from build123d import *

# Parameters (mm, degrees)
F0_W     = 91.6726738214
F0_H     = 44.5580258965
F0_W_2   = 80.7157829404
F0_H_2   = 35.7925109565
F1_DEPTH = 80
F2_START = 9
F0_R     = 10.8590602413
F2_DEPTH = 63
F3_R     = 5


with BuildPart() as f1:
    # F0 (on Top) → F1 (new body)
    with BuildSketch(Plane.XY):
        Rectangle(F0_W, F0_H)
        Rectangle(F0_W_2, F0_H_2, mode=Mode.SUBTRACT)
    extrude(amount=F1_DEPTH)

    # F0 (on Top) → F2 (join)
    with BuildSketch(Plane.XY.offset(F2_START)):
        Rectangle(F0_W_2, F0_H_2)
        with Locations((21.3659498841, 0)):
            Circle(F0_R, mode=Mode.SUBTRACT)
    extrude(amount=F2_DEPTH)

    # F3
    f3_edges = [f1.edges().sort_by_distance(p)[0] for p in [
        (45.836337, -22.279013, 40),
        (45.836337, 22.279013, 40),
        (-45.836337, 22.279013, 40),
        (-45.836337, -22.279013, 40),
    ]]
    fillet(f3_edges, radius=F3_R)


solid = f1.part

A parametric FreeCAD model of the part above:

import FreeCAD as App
import Part
import Sketcher
from FreeCAD import Vector


def edges_at(feature, points):
    """Names of the edges that pass closest to the given points."""
    edges = feature.Shape.Edges
    near = lambda p: min(range(len(edges)), key=lambda i: edges[i].distToShape(Part.Vertex(*p))[0])
    return sorted({f"Edge{near(p) + 1}" for p in points})

doc = App.newDocument("Part")
body = doc.addObject("PartDesign::Body", "Body")

sketch1 = body.newObject("Sketcher::SketchObject", "Sketch")
sketch1.AttachmentSupport = (doc.getObject("XY_Plane"), [""])
sketch1.MapMode = "FlatFace"
sketch1.addGeometry([
    Part.LineSegment(Vector(-46, 22, 0), Vector(-46, -22, 0)),
    Part.LineSegment(Vector(-46, -22, 0), Vector(46, -22, 0)),
    Part.LineSegment(Vector(46, -22, 0), Vector(46, 22, 0)),
    Part.LineSegment(Vector(46, 22, 0), Vector(-46, 22, 0)),
    Part.LineSegment(Vector(40, -18, 0), Vector(-40, -18, 0)),
    Part.LineSegment(Vector(-40, -18, 0), Vector(-40, 18, 0)),
    Part.LineSegment(Vector(-40, 18, 0), Vector(40, 18, 0)),
    Part.LineSegment(Vector(40, 18, 0), Vector(40, -18, 0)),
], False)
sketch1.addConstraint([
    Sketcher.Constraint("Coincident", 0, 2, 1, 1),
    Sketcher.Constraint("Coincident", 1, 2, 2, 1),
    Sketcher.Constraint("Coincident", 2, 2, 3, 1),
    Sketcher.Constraint("Coincident", 3, 2, 0, 1),
    Sketcher.Constraint("Coincident", 4, 2, 5, 1),
    Sketcher.Constraint("Coincident", 5, 2, 6, 1),
    Sketcher.Constraint("Coincident", 6, 2, 7, 1),
    Sketcher.Constraint("Coincident", 7, 2, 4, 1),
    Sketcher.Constraint("Vertical", 0),
    Sketcher.Constraint("Horizontal", 1),
    Sketcher.Constraint("Vertical", 2),
    Sketcher.Constraint("Horizontal", 3),
    Sketcher.Constraint("Horizontal", 4),
    Sketcher.Constraint("Vertical", 5),
    Sketcher.Constraint("Horizontal", 6),
    Sketcher.Constraint("Vertical", 7),
    Sketcher.Constraint("Symmetric", 0, 2, 2, 2, -1, 1),
    Sketcher.Constraint("Symmetric", 4, 2, 6, 2, -1, 1),
    Sketcher.Constraint("DistanceY", 5, 1, 5, 2, 35.792511),
    Sketcher.Constraint("DistanceX", 1, 1, 1, 2, 91.672674),
    Sketcher.Constraint("DistanceX", 4, 2, 4, 1, 80.715783),
    Sketcher.Constraint("DistanceY", 0, 2, 0, 1, 44.558026),
])
pad1 = body.newObject("PartDesign::Pad", "Pad")
pad1.Profile = sketch1
pad1.Length = 80

sketch2 = body.newObject("Sketcher::SketchObject", "Sketch001")
sketch2.AttachmentSupport = (doc.getObject("XY_Plane"), [""])
sketch2.MapMode = "FlatFace"
sketch2.AttachmentOffset = App.Placement(Vector(0, 0, 9), App.Rotation())
sketch2.addGeometry([
    Part.LineSegment(Vector(-40, 18, 0), Vector(-40, -18, 0)),
    Part.LineSegment(Vector(-40, -18, 0), Vector(40, -18, 0)),
    Part.LineSegment(Vector(40, -18, 0), Vector(40, 18, 0)),
    Part.LineSegment(Vector(40, 18, 0), Vector(-40, 18, 0)),
    Part.Circle(Vector(21, 0, 0), Vector(0, 0, 1), 11),
], False)
sketch2.addConstraint([
    Sketcher.Constraint("Coincident", 0, 2, 1, 1),
    Sketcher.Constraint("Coincident", 1, 2, 2, 1),
    Sketcher.Constraint("Coincident", 2, 2, 3, 1),
    Sketcher.Constraint("Coincident", 3, 2, 0, 1),
    Sketcher.Constraint("Vertical", 0),
    Sketcher.Constraint("Horizontal", 1),
    Sketcher.Constraint("Vertical", 2),
    Sketcher.Constraint("Horizontal", 3),
    Sketcher.Constraint("Symmetric", 0, 2, 2, 2, -1, 1),
    Sketcher.Constraint("PointOnObject", 4, 3, -1),
    Sketcher.Constraint("Diameter", 4, 21.71812),
    Sketcher.Constraint("DistanceY", 0, 2, 0, 1, 35.792511),
    Sketcher.Constraint("DistanceX", 1, 1, 1, 2, 80.715783),
    Sketcher.Constraint("DistanceX", -1, 1, 4, 3, 21.36595),
])
pad2 = body.newObject("PartDesign::Pad", "Pad001")
pad2.Profile = sketch2
pad2.Length = 63
doc.recompute()

fillet = body.newObject("PartDesign::Fillet", "Fillet")
fillet.Base = (pad2, edges_at(pad2, [
    (45.836, -22.279, 40),
    (45.836, 22.279, 40),
    (-45.836, 22.279, 40),
    (-45.836, -22.279, 40),
]))
fillet.Radius = 5

doc.recompute()
